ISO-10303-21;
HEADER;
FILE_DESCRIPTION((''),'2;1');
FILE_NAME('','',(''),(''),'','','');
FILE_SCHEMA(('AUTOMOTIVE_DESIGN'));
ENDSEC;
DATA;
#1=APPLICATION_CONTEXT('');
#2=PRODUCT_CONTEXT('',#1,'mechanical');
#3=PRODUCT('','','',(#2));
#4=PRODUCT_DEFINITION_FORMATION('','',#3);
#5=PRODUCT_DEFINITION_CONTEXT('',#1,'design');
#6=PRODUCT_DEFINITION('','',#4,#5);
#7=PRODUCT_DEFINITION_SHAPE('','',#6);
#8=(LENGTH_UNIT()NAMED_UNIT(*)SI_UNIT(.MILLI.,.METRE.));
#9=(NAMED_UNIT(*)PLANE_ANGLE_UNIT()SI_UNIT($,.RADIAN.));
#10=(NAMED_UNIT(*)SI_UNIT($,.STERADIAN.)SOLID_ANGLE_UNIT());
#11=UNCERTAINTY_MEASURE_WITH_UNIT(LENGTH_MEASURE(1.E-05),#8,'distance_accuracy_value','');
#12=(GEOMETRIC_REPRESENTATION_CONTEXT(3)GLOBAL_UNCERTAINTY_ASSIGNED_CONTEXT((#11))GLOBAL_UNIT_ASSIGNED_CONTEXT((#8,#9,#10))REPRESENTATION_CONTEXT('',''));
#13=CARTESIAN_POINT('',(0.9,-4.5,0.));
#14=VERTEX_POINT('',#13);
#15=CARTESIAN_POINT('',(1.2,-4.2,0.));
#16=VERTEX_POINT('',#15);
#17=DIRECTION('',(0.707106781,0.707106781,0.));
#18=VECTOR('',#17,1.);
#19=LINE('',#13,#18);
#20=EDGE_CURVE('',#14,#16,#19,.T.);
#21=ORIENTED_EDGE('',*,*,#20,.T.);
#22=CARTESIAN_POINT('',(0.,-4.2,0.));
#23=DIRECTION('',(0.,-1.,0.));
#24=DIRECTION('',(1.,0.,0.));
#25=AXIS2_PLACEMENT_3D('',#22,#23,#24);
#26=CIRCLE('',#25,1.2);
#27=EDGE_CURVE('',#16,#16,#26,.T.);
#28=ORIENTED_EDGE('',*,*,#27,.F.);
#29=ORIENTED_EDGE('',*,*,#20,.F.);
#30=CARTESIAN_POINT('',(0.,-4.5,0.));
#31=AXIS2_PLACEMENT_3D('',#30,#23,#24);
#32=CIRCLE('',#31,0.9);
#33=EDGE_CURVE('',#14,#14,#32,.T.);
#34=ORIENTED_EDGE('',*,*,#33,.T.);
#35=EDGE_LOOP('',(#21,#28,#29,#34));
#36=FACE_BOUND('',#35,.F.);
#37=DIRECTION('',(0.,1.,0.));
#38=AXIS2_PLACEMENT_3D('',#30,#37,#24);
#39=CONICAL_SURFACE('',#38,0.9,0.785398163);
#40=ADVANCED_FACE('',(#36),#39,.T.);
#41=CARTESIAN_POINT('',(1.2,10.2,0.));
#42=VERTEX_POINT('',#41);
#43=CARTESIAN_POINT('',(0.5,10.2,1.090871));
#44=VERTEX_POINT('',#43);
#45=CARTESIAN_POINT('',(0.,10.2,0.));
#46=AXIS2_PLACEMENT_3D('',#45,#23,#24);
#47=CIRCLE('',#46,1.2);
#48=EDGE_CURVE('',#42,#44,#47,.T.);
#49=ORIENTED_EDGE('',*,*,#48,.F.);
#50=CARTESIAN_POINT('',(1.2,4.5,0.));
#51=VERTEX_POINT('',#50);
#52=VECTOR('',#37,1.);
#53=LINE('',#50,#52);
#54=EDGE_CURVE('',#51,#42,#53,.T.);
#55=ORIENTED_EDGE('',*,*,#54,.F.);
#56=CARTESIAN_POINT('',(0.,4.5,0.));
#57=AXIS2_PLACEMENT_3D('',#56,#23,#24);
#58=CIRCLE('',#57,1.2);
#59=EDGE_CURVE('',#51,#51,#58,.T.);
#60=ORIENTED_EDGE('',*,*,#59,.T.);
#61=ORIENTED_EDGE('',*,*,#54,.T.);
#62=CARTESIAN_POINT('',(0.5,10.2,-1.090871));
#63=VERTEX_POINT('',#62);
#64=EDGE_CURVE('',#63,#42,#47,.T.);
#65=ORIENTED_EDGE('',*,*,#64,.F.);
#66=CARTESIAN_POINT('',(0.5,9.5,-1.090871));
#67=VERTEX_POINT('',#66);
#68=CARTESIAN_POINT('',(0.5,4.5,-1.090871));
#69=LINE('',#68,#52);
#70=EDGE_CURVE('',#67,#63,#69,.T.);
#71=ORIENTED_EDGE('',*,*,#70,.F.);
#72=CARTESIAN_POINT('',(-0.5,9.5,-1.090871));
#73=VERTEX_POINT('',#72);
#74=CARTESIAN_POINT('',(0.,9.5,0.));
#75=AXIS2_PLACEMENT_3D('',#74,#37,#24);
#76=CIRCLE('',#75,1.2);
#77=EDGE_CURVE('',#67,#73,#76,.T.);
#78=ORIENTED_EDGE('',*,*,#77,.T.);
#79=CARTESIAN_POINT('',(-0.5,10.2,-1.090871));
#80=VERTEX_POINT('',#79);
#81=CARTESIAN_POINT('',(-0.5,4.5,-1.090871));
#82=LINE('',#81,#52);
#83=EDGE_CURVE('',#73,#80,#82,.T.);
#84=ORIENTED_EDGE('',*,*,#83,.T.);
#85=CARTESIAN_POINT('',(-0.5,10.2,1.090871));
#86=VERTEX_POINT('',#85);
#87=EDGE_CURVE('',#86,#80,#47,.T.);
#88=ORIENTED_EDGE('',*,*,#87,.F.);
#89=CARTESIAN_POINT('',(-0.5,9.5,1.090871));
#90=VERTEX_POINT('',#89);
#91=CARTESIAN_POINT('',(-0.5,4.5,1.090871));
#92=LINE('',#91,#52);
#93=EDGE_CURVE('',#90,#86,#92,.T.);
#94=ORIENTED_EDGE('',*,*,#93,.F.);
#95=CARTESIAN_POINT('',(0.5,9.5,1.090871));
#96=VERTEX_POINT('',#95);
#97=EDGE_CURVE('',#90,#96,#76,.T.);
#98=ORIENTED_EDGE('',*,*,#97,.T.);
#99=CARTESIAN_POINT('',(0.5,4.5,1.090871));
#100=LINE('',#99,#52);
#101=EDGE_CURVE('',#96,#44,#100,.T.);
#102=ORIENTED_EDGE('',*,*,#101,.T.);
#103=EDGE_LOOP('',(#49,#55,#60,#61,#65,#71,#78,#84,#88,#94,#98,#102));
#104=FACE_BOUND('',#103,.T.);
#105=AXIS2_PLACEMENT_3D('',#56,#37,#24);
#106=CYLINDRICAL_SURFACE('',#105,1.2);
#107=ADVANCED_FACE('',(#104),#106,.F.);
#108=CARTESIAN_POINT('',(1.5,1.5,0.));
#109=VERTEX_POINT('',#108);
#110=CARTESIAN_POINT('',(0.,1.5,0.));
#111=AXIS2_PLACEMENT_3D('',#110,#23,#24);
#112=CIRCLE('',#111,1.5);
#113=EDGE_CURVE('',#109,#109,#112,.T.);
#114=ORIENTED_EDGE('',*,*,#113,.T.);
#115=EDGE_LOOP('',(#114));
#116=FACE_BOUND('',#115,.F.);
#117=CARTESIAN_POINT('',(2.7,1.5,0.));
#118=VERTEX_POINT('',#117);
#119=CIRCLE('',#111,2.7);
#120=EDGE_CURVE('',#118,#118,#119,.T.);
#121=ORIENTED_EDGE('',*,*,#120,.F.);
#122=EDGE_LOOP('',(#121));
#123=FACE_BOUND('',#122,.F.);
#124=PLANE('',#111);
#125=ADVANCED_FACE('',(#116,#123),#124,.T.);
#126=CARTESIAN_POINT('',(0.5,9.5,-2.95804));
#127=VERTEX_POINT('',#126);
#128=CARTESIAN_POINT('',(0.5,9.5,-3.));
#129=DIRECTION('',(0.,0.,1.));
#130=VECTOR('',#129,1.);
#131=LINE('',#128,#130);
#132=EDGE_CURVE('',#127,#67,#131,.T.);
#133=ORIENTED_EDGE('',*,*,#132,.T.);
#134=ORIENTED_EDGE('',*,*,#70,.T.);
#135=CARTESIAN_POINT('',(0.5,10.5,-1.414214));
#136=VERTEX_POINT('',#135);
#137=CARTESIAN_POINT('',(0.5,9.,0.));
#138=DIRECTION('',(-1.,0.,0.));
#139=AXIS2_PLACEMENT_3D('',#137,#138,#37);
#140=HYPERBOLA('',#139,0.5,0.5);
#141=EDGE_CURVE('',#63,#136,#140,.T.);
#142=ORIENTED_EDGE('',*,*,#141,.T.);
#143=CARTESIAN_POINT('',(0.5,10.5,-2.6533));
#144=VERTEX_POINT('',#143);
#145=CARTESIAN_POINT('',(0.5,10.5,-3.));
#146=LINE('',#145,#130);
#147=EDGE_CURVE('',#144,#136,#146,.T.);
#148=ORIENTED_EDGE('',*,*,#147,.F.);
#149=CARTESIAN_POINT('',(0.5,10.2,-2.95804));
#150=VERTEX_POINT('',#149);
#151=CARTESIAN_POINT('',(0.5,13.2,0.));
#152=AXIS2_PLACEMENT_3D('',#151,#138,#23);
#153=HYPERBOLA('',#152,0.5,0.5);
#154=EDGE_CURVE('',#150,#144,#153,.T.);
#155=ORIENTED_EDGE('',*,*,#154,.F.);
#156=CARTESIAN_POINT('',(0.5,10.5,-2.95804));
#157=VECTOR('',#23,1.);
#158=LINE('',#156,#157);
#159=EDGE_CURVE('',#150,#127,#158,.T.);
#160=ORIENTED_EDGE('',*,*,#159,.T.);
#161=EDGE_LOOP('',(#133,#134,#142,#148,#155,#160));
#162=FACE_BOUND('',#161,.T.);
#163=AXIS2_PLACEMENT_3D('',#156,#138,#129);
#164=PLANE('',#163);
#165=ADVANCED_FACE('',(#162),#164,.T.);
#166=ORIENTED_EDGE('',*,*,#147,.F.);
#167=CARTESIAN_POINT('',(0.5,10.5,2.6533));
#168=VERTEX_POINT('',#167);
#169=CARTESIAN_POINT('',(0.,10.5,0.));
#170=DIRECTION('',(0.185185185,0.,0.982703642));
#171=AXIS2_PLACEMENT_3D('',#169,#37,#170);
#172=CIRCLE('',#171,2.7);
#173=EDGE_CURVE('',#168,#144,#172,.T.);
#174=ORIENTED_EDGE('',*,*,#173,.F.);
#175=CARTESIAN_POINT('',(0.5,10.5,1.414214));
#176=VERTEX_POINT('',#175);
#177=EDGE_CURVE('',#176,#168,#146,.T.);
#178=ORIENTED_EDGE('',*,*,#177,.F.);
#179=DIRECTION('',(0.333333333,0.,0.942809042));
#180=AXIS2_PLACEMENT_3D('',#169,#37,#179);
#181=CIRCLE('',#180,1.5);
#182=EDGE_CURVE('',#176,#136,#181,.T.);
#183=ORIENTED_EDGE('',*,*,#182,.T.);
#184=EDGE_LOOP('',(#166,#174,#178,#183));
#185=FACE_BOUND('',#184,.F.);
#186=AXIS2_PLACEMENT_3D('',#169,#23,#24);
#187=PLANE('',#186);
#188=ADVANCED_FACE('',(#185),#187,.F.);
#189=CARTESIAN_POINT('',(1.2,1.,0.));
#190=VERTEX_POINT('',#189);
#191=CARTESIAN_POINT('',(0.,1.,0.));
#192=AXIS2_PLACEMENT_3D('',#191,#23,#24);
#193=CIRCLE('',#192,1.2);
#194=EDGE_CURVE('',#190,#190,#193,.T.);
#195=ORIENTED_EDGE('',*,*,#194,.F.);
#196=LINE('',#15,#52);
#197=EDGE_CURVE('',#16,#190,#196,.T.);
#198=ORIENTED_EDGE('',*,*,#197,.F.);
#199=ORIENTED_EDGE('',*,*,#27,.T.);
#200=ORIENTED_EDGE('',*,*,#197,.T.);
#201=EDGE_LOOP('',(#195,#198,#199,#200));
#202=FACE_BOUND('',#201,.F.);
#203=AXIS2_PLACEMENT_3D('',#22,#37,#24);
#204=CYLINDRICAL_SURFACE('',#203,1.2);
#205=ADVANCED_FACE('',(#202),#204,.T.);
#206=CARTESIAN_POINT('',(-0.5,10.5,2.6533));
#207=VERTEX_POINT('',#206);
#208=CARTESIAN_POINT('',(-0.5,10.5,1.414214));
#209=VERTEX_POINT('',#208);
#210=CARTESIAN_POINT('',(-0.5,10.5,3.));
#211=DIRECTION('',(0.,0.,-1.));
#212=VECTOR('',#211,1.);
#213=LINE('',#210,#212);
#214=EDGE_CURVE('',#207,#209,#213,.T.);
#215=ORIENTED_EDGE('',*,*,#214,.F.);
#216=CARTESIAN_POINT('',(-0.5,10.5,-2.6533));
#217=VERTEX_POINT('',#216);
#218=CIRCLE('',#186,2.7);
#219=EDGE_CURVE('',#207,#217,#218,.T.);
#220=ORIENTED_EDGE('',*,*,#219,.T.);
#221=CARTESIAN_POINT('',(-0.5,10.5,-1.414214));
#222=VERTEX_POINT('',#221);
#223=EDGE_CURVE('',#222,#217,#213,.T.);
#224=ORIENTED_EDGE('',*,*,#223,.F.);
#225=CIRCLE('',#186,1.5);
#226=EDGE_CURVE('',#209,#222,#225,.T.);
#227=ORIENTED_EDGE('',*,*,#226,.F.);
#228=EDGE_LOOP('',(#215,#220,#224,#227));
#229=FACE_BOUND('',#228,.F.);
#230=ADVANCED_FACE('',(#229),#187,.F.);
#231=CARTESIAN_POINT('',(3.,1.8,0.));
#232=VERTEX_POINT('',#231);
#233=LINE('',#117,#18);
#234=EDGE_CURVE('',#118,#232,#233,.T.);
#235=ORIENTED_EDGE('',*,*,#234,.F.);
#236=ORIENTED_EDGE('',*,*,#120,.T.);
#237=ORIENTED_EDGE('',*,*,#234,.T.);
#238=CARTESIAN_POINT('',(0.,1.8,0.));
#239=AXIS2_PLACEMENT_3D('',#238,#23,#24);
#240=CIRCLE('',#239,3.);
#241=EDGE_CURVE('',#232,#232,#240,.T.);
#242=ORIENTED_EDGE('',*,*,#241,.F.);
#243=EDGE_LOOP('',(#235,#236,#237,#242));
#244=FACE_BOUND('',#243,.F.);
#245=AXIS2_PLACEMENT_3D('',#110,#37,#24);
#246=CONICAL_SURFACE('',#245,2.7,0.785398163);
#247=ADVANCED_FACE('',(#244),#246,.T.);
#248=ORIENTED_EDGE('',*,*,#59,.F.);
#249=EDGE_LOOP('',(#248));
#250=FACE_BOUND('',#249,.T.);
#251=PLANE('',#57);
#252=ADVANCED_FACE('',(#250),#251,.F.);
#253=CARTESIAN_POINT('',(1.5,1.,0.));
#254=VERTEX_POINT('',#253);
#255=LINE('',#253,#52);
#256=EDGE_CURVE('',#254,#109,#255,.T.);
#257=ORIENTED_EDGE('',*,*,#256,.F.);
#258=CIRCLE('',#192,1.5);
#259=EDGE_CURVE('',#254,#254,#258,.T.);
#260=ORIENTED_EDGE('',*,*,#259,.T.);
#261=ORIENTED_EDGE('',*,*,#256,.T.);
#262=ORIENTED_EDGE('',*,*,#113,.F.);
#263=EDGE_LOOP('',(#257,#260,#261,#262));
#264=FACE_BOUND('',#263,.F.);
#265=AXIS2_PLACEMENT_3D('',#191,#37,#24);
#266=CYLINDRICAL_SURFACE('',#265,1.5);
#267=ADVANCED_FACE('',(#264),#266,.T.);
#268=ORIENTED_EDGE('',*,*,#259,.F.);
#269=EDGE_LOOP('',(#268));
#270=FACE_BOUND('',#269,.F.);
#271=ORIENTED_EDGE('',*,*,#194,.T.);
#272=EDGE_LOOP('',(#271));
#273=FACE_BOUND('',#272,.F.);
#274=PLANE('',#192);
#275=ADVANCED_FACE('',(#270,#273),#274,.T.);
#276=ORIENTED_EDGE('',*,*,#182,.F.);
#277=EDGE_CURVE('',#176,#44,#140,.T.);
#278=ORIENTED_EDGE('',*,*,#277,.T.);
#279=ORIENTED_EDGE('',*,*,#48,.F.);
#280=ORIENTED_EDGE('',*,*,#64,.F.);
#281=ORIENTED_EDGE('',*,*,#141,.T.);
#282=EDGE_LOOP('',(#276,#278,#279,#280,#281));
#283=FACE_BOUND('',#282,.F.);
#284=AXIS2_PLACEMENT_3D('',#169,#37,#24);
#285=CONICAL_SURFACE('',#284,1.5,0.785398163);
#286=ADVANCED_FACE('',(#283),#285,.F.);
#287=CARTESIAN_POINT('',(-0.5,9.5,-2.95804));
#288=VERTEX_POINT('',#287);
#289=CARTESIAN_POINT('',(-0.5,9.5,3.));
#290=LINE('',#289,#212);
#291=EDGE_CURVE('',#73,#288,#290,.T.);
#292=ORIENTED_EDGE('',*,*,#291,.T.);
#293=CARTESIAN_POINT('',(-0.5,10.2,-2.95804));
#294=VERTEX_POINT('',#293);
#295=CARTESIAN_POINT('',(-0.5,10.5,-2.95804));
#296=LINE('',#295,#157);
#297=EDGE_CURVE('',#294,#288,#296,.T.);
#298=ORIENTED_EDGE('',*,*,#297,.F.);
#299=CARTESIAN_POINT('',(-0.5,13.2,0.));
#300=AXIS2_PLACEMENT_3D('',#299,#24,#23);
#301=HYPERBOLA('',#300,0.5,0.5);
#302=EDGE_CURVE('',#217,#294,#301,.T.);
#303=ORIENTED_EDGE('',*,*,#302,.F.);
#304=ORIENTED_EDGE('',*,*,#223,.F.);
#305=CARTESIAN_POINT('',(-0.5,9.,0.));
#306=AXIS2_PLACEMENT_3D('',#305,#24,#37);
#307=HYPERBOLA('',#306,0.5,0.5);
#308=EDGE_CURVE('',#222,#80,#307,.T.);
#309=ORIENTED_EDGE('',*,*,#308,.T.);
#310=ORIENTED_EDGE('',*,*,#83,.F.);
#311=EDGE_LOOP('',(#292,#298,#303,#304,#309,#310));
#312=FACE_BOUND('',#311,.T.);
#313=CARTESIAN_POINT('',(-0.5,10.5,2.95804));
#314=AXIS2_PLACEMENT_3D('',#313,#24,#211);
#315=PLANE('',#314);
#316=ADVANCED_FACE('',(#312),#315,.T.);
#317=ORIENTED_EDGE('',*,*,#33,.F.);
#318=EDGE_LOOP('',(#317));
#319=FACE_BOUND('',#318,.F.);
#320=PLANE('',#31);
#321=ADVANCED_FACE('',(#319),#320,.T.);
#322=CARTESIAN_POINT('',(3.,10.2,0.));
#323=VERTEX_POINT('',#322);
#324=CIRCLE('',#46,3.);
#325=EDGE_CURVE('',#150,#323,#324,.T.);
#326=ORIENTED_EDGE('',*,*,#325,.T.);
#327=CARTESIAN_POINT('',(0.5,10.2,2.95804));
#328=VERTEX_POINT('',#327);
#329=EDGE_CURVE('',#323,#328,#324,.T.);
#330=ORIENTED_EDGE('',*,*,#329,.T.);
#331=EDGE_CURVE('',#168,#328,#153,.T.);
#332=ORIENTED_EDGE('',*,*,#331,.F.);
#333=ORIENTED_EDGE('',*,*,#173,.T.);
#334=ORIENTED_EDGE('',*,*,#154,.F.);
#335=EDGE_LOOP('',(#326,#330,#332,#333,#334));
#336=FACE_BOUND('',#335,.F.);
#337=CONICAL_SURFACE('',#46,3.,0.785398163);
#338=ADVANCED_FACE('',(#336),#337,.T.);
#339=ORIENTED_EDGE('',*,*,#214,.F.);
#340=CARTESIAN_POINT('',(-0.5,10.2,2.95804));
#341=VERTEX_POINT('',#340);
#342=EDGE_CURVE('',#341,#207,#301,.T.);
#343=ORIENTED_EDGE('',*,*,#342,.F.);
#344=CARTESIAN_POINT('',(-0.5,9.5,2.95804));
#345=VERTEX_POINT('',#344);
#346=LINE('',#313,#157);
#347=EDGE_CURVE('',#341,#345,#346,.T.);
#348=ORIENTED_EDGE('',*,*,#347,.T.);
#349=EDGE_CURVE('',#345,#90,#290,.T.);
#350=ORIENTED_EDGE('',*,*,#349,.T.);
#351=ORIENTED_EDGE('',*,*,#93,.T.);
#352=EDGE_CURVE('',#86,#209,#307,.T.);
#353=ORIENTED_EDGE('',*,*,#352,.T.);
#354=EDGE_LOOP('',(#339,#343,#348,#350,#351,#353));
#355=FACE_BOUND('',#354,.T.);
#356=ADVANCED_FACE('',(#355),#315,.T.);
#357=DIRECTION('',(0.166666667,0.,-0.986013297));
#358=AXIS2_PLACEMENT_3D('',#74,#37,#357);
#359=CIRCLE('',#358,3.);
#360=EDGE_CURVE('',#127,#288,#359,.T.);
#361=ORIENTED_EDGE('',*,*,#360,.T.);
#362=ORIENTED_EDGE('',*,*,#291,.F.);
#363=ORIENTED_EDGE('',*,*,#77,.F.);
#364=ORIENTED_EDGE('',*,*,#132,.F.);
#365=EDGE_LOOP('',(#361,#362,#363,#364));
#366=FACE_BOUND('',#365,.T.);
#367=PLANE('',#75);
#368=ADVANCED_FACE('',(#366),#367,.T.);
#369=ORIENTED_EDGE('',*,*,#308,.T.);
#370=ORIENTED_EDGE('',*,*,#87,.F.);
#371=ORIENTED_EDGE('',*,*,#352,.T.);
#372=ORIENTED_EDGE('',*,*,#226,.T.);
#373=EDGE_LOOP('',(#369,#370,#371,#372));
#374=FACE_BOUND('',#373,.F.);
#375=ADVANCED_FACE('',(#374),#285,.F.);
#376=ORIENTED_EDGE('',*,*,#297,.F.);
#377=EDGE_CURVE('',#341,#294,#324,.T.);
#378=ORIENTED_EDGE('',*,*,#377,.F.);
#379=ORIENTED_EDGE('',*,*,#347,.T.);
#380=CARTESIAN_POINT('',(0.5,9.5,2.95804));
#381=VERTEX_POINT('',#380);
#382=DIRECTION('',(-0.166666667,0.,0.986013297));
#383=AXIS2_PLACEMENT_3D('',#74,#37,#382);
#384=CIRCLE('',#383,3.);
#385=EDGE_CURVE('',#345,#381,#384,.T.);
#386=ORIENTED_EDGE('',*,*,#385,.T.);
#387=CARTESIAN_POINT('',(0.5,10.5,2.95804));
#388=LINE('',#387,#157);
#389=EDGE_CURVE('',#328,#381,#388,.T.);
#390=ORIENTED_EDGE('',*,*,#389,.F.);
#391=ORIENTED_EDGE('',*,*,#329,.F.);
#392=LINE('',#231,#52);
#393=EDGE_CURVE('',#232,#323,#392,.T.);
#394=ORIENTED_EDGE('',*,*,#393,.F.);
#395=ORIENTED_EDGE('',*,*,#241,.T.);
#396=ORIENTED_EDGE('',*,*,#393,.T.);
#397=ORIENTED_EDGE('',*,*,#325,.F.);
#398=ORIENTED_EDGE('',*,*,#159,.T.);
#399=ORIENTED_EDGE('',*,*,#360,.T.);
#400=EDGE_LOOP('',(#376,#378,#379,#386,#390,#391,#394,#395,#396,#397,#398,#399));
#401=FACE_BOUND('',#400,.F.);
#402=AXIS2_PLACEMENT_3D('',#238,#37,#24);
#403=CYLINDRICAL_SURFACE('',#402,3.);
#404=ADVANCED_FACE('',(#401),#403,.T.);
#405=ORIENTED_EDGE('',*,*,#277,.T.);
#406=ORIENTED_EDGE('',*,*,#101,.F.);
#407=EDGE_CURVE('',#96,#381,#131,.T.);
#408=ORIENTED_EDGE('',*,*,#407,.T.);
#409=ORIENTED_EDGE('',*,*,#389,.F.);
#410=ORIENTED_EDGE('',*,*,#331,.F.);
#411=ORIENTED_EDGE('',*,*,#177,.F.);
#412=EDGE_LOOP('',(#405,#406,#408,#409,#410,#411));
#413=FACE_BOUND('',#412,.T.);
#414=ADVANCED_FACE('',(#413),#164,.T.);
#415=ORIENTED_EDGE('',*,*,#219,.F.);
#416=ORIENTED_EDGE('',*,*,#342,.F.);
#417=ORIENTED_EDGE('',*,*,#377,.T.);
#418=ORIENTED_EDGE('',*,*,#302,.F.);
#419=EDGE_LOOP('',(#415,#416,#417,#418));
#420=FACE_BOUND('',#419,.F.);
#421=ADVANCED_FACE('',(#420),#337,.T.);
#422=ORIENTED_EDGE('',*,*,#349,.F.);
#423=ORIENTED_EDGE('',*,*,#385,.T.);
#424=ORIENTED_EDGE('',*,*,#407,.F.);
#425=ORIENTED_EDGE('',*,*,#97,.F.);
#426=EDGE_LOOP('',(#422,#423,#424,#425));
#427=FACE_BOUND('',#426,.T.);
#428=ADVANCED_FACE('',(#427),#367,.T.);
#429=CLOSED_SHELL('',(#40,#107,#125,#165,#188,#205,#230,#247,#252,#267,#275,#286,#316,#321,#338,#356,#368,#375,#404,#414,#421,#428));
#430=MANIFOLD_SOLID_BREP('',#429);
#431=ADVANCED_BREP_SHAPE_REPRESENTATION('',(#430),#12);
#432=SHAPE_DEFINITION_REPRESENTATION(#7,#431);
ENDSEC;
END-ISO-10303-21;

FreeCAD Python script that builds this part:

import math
import FreeCAD as App
import Part
import Sketcher

V = App.Vector
Q = App.Units.Quantity


def add_polygon(sketch, points):
    """Adds a closed chain of lines whose ends are joined by coincident constraints."""
    first, n = sketch.GeometryCount, len(points)
    for a, b in zip(points, points[1:] + points[:1]):
        sketch.addGeometry(Part.LineSegment(App.Vector(*a, 0), App.Vector(*b, 0)), False)
    for i in range(n):
        sketch.addConstraint(Sketcher.Constraint("Coincident", first + i, 2, first + (i + 1) % n, 1))

doc = App.newDocument("Part")
body = doc.addObject("PartDesign::Body", "Body")

sketch1 = body.newObject("Sketcher::SketchObject", "Sketch")
sketch1.AttachmentSupport = (doc.getObject("XY_Plane"), [""])
sketch1.MapMode = "FlatFace"
add_polygon(sketch1, [(0, 4.5), (0, -4.5), (0.9, -4.5), (1.2, -4.2), (1.2, 1), (1.5, 1), (1.5, 1.5), (2.7, 1.5), (3, 1.8), (3, 10.2), (2.7, 10.5), (1.5, 10.5), (1.2, 10.2), (1.2, 4.5)])
sketch1.addConstraint([
    Sketcher.Constraint("Vertical", 0),
    Sketcher.Constraint("Horizontal", 1),
    Sketcher.Constraint("Vertical", 3),
    Sketcher.Constraint("Horizontal", 4),
    Sketcher.Constraint("Vertical", 5),
    Sketcher.Constraint("Horizontal", 6),
    Sketcher.Constraint("Vertical", 8),
    Sketcher.Constraint("Horizontal", 10),
    Sketcher.Constraint("Vertical", 12),
    Sketcher.Constraint("Horizontal", 13),
    Sketcher.Constraint("Symmetric", 0, 2, 13, 2, -1, 1),
    Sketcher.Constraint("Parallel", 2, 7),
    Sketcher.Constraint("Perpendicular", 7, 9),
    Sketcher.Constraint("Perpendicular", 9, 11),
    Sketcher.Constraint("Horizontal", 8, 2, 11, 2),
    Sketcher.Constraint("Vertical", 6, 2, 9, 2),
    Sketcher.Constraint("Vertical", 5, 2, 10, 2),
    Sketcher.Constraint("Vertical", 3, 2, 11, 2),
    Sketcher.Constraint("Equal", 10, 13),
    Sketcher.Constraint("Equal", 2, 7),
    Sketcher.Constraint("Equal", 7, 9),
    Sketcher.Constraint("DistanceY", 0, 2, 0, 1, Q("9 mm")),
    Sketcher.Constraint("DistanceX", 4, 1, 4, 2, Q("0.3 mm")),
    Sketcher.Constraint("DistanceY", 5, 1, 5, 2, Q("0.5 mm")),
    Sketcher.Constraint("DistanceX", -1, 1, 7, 2, Q("3 mm")),
    Sketcher.Constraint("DistanceY", 1, 2, 5, 2, Q("6 mm")),
    Sketcher.Constraint("DistanceY", 6, 2, 9, 2, Q("9 mm")),
])
revolution = body.newObject("PartDesign::Revolution", "Revolution")
revolution.Profile = sketch1
revolution.ReferenceAxis = (sketch1, ["V_Axis"])
revolution.Angle = 360

sketch2 = body.newObject("Sketcher::SketchObject", "Sketch001")
sketch2.AttachmentSupport = (doc.getObject("XZ_Plane"), [""])
sketch2.MapMode = "FlatFace"
sketch2.AttachmentOffset = App.Placement(V(0, 0, -10.5), App.Rotation())
sketch2.addGeometry([
    Part.ArcOfCircle(Part.Circle(V(0, 0, 0), V(0, 0, 1), 3), math.radians(-99.594068), math.radians(-80.405932)),
    Part.LineSegment(V(-0.5, -2.95804, 0), V(-0.5, 2.95804, 0)),
    Part.ArcOfCircle(Part.Circle(V(0, 0, 0), V(0, 0, 1), 3), math.radians(80.405932), math.radians(99.594068)),
    Part.LineSegment(V(0.5, 2.95804, 0), V(0.5, -2.95804, 0)),
], False)
sketch2.addConstraint([
    Sketcher.Constraint("Coincident", 0, 1, 1, 1),
    Sketcher.Constraint("Coincident", 1, 2, 2, 2),
    Sketcher.Constraint("Coincident", 2, 1, 3, 1),
    Sketcher.Constraint("Coincident", 3, 2, 0, 2),
    Sketcher.Constraint("Vertical", 1),
    Sketcher.Constraint("Vertical", 3),
    Sketcher.Constraint("Coincident", 0, 3, -1, 1),
    Sketcher.Constraint("Coincident", 2, 3, -1, 1),
    Sketcher.Constraint("Equal", 0, 2),
    Sketcher.Constraint("Horizontal", 1, 2, 2, 1),
    Sketcher.Constraint("Radius", 0, Q("3 mm")),
    Sketcher.Constraint("DistanceX", 1, 2, 2, 1, Q("1 mm")),
])
pocket1 = body.newObject("PartDesign::Pocket", "Pocket")
pocket1.Profile = sketch2
pocket1.Length = 1
pocket1.Reversed = True

doc.recompute()
